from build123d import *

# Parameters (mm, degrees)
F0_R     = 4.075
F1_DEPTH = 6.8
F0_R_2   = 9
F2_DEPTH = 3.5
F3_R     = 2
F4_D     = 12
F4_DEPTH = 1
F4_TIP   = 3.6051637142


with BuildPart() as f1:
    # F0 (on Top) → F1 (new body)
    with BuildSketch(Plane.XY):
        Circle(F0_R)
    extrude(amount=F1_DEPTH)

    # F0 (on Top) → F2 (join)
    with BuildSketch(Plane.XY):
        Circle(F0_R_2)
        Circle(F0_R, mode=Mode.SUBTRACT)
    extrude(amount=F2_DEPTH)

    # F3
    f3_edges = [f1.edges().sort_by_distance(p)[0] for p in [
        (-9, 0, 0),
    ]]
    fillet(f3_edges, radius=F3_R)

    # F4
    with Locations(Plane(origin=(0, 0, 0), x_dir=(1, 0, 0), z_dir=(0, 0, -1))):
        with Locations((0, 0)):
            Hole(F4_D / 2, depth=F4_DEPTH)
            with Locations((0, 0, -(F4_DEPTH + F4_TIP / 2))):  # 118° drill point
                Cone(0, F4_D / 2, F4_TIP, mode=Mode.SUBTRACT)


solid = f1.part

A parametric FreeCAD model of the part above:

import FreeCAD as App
import Part
import Sketcher

V = App.Vector


def edges_at(feature, points):
    """Names of the edges that pass closest to the given points."""
    edges = feature.Shape.Edges
    near = lambda p: min(range(len(edges)), key=lambda i: edges[i].distToShape(Part.Vertex(*p))[0])
    return sorted({f"Edge{near(p) + 1}" for p in points})

doc = App.newDocument("Part")
body = doc.addObject("PartDesign::Body", "Body")

sketch1 = body.newObject("Sketcher::SketchObject", "Sketch")
sketch1.AttachmentSupport = (doc.getObject("XY_Plane"), [""])
sketch1.MapMode = "FlatFace"
sketch1.addGeometry(Part.Circle(V(0, 0, 0), V(0, 0, 1), 4.1), False)
sketch1.addConstraint([
    Sketcher.Constraint("Coincident", 0, 3, -1, 1),
    Sketcher.Constraint("Diameter", 0, 8.15),
])
pad1 = body.newObject("PartDesign::Pad", "Pad")
pad1.Profile = sketch1
pad1.Length = 6.8

sketch2 = body.newObject("Sketcher::SketchObject", "Sketch001")
sketch2.AttachmentSupport = (doc.getObject("XY_Plane"), [""])
sketch2.MapMode = "FlatFace"
sketch2.addGeometry([
    Part.Circle(V(0, 0, 0), V(0, 0, 1), 9),
    Part.Circle(V(0, 0, 0), V(0, 0, 1), 4.1),
], False)
sketch2.addConstraint([
    Sketcher.Constraint("Coincident", 0, 3, -1, 1),
    Sketcher.Constraint("Coincident", 1, 3, -1, 1),
    Sketcher.Constraint("Diameter", 0, 18.0),
    Sketcher.Constraint("Diameter", 1, 8.15),
])
pad2 = body.newObject("PartDesign::Pad", "Pad001")
pad2.Profile = sketch2
pad2.Length = 3.5
doc.recompute()

fillet = body.newObject("PartDesign::Fillet", "Fillet")
fillet.Base = (pad2, edges_at(pad2, [(-9, 0, 0)]))
fillet.Radius = 2

sketch3 = body.newObject("Sketcher::SketchObject", "Sketch002")
sketch3.AttachmentSupport = (doc.getObject("XY_Plane"), [""])
sketch3.MapMode = "FlatFace"
sketch3.addGeometry(Part.Circle(V(0, 0, 0), V(0, 0, 1), 6), False)
sketch3.addConstraint([
    Sketcher.Constraint("Coincident", 0, 3, -1, 1),
    Sketcher.Constraint("Diameter", 0, 12.0),
])
doc.recompute()
hole = body.newObject("PartDesign::Hole", "Hole")
hole.Profile = sketch3
hole.ThreadType = "None"
hole.Diameter = 12
hole.DepthType = "Dimension"
hole.Depth = 1
hole.DrillPoint = "Angled"
hole.DrillPointAngle = 118
hole.Reversed = True

doc.recompute()
